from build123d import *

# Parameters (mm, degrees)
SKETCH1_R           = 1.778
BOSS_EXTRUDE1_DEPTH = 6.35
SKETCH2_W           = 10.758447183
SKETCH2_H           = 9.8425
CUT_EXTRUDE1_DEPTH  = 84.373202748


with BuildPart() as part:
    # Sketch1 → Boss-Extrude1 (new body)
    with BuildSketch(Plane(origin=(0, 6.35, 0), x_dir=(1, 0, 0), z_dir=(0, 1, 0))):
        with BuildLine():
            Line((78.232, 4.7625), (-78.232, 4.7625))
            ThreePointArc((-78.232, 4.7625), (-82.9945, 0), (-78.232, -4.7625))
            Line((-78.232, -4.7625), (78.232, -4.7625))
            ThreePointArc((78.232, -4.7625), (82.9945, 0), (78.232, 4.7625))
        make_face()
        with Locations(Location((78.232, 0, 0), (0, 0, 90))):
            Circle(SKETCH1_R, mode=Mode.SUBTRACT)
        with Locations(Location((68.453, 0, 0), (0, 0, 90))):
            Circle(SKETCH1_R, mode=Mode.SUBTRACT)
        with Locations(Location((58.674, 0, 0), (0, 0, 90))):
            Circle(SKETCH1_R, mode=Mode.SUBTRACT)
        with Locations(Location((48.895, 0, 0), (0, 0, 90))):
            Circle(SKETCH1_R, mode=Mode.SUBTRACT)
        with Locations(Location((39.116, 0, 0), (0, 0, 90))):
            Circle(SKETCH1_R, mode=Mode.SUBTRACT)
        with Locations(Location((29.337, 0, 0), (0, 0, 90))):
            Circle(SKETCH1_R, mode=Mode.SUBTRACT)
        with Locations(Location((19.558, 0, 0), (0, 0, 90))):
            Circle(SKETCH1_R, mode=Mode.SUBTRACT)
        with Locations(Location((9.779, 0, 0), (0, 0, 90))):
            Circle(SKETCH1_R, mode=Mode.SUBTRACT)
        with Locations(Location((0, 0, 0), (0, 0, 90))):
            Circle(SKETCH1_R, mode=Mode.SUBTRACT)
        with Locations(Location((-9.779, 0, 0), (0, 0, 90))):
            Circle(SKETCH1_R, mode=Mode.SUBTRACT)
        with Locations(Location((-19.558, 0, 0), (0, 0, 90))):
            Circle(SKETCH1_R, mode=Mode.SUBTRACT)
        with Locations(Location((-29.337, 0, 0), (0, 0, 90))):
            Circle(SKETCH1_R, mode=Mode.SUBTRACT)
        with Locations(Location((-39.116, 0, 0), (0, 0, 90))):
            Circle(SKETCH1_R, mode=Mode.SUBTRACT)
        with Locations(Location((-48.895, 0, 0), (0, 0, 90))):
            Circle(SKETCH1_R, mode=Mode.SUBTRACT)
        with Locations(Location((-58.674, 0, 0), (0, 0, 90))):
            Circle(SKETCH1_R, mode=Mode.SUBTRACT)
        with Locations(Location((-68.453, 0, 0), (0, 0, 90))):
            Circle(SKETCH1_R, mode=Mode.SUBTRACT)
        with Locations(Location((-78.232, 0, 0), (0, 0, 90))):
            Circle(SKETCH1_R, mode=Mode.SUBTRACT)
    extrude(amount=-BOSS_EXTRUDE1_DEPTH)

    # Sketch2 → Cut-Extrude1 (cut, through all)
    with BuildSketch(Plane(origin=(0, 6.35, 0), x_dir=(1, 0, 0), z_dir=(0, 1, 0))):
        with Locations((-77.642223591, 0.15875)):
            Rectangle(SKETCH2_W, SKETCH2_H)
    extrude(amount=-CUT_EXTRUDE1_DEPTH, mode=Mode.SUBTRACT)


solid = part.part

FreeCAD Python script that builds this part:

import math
import FreeCAD as App
import Part
import Sketcher

V = App.Vector
Q = App.Units.Quantity

doc = App.newDocument("Part")
body = doc.addObject("PartDesign::Body", "Body")

# Sketch on XZ plane
sketch1 = body.newObject("Sketcher::SketchObject", "Sketch")
sketch1.AttachmentSupport = (doc.getObject("XZ_Plane"), [""])
sketch1.MapMode = "FlatFace"
sketch1.AttachmentOffset = App.Placement(V(0, 0, -0.25 * 25.4), App.Rotation())
sketch1.addGeometry([
    Part.LineSegment(V(78.2, -4.8, 0), V(-78.2, -4.8, 0)),  # 0
    Part.ArcOfCircle(Part.Circle(V(-78.2, 0, 0), V(0, 0, 1), 4.8), math.radians(90), math.radians(270)),  # 1
    Part.LineSegment(V(-78.2, 4.8, 0), V(78.2, 4.8, 0)),  # 2
    Part.ArcOfCircle(Part.Circle(V(78.2, 0, 0), V(0, 0, 1), 4.8), math.radians(-90), math.radians(90)),  # 3
    Part.Circle(V(-78.2, 0, 0), V(0, 0, 1), 1.8),  # 4
    Part.Circle(V(-68.5, 0, 0), V(0, 0, 1), 1.8),  # 5
    Part.Circle(V(-58.7, 0, 0), V(0, 0, 1), 1.8),  # 6
    Part.Circle(V(-48.9, 0, 0), V(0, 0, 1), 1.8),  # 7
    Part.Circle(V(-39.1, 0, 0), V(0, 0, 1), 1.8),  # 8
    Part.Circle(V(-29.3, 0, 0), V(0, 0, 1), 1.8),  # 9
    Part.Circle(V(-19.6, 0, 0), V(0, 0, 1), 1.8),  # 10
    Part.Circle(V(-9.8, 0, 0), V(0, 0, 1), 1.8),  # 11
    Part.Circle(V(0, 0, 0), V(0, 0, 1), 1.8),  # 12
    Part.Circle(V(9.8, 0, 0), V(0, 0, 1), 1.8),  # 13
    Part.Circle(V(19.6, 0, 0), V(0, 0, 1), 1.8),  # 14
    Part.Circle(V(29.3, 0, 0), V(0, 0, 1), 1.8),  # 15
    Part.Circle(V(39.1, 0, 0), V(0, 0, 1), 1.8),  # 16
    Part.Circle(V(48.9, 0, 0), V(0, 0, 1), 1.8),  # 17
    Part.Circle(V(58.7, 0, 0), V(0, 0, 1), 1.8),  # 18
    Part.Circle(V(68.5, 0, 0), V(0, 0, 1), 1.8),  # 19
    Part.Circle(V(78.2, 0, 0), V(0, 0, 1), 1.8),  # 20
], False)
sketch1.addConstraint([
    Sketcher.Constraint("Tangent", 0, 2, 1, 2),
    Sketcher.Constraint("Tangent", 1, 1, 2, 1),
    Sketcher.Constraint("Tangent", 2, 2, 3, 2),
    Sketcher.Constraint("Tangent", 3, 1, 0, 1),
    Sketcher.Constraint("Horizontal", 0),
    Sketcher.Constraint("Horizontal", 2),
    Sketcher.Constraint("Coincident", 12, 3, -1, 1),
    Sketcher.Constraint("Coincident", 4, 3, 1, 3),
    Sketcher.Constraint("Coincident", 20, 3, 3, 3),
    Sketcher.Constraint("Equal", 4, 5),
    Sketcher.Constraint("Equal", 5, 6),
    Sketcher.Constraint("Equal", 6, 7),
    Sketcher.Constraint("Equal", 7, 8),
    Sketcher.Constraint("Equal", 8, 9),
    Sketcher.Constraint("Equal", 9, 10),
    Sketcher.Constraint("Equal", 10, 11),
    Sketcher.Constraint("Equal", 11, 12),
    Sketcher.Constraint("Equal", 12, 13),
    Sketcher.Constraint("Equal", 13, 14),
    Sketcher.Constraint("Equal", 14, 15),
    Sketcher.Constraint("Equal", 15, 16),
    Sketcher.Constraint("Equal", 16, 17),
    Sketcher.Constraint("Equal", 17, 18),
    Sketcher.Constraint("Equal", 18, 19),
    Sketcher.Constraint("Equal", 19, 20),
    Sketcher.Constraint("Symmetric", 1, 3, 3, 3, -1, 1),
    Sketcher.Constraint("Symmetric", 11, 3, 13, 3, -1, 1),
    Sketcher.Constraint("Symmetric", 10, 3, 14, 3, -1, 1),
    Sketcher.Constraint("Symmetric", 9, 3, 15, 3, -1, 1),
    Sketcher.Constraint("Symmetric", 8, 3, 16, 3, -1, 1),
    Sketcher.Constraint("Symmetric", 7, 3, 17, 3, -1, 1),
    Sketcher.Constraint("Symmetric", 6, 3, 18, 3, -1, 1),
    Sketcher.Constraint("Symmetric", 5, 3, 19, 3, -1, 1),
    Sketcher.Constraint("PointOnObject", 5, 3, -1),
    Sketcher.Constraint("PointOnObject", 6, 3, -1),
    Sketcher.Constraint("PointOnObject", 7, 3, -1),
    Sketcher.Constraint("PointOnObject", 8, 3, -1),
    Sketcher.Constraint("PointOnObject", 9, 3, -1),
    Sketcher.Constraint("PointOnObject", 10, 3, -1),
    Sketcher.Constraint("PointOnObject", 11, 3, -1),
    Sketcher.Constraint("Diameter", 4, Q("0.14 in")),
    Sketcher.Constraint("Radius", 1, Q("0.1875 in")),
    Sketcher.Constraint("DistanceX", 0, 2, 0, 1, Q("6.16 in")),
    Sketcher.Constraint("DistanceX", 6, 3, -1, 1, Q("2.31 in")),
    Sketcher.Constraint("DistanceX", 8, 3, -1, 1, Q("1.54 in")),
    Sketcher.Constraint("DistanceX", 10, 3, -1, 1, Q("0.77 in")),
    Sketcher.Constraint("DistanceX", 5, 3, 7, 3, Q("0.77 in")),
    Sketcher.Constraint("DistanceX", 7, 3, 9, 3, Q("0.77 in")),
    Sketcher.Constraint("DistanceX", 9, 3, 11, 3, Q("0.77 in")),
    Sketcher.Constraint("DistanceX", 11, 3, 13, 3, Q("0.77 in")),
])
pad1 = body.newObject("PartDesign::Pad", "Pad")
pad1.Profile = sketch1
pad1.Length = Q("0.25 in")

# Sketch on XZ plane
sketch2 = body.newObject("Sketcher::SketchObject", "Sketch001")
sketch2.AttachmentSupport = (doc.getObject("XZ_Plane"), [""])
sketch2.MapMode = "FlatFace"
sketch2.AttachmentOffset = App.Placement(V(0, 0, -0.25 * 25.4), App.Rotation())
sketch2.addGeometry([
    Part.LineSegment(V(-83, -5, 0), V(-83, 5, 0)),
    Part.LineSegment(V(-83, 5, 0), V(-72, 5, 0)),
    Part.LineSegment(V(-72, 5, 0), V(-72, -5, 0)),
    Part.LineSegment(V(-72, -5, 0), V(-83, -5, 0)),
], False)
sketch2.addConstraint([
    Sketcher.Constraint("Coincident", 0, 2, 1, 1),
    Sketcher.Constraint("Coincident", 1, 2, 2, 1),
    Sketcher.Constraint("Coincident", 2, 2, 3, 1),
    Sketcher.Constraint("Coincident", 3, 2, 0, 1),
    Sketcher.Constraint("Vertical", 0),
    Sketcher.Constraint("Horizontal", 1),
    Sketcher.Constraint("Vertical", 2),
    Sketcher.Constraint("Horizontal", 3),
    Sketcher.Constraint("DistanceY", 2, 2, -1, 1, Q("0.2 in")),
    Sketcher.Constraint("DistanceY", 0, 1, 0, 2, Q("0.3875 in")),
    Sketcher.Constraint("DistanceX", 1, 2, -1, 1, Q("2.845 in")),
    Sketcher.Constraint("DistanceX", 1, 1, 1, 2, 10.758447),
])
pocket1 = body.newObject("PartDesign::Pocket", "Pocket")
pocket1.Profile = sketch2
pocket1.Type = "ThroughAll"
pocket1.Reversed = True

doc.recompute()
